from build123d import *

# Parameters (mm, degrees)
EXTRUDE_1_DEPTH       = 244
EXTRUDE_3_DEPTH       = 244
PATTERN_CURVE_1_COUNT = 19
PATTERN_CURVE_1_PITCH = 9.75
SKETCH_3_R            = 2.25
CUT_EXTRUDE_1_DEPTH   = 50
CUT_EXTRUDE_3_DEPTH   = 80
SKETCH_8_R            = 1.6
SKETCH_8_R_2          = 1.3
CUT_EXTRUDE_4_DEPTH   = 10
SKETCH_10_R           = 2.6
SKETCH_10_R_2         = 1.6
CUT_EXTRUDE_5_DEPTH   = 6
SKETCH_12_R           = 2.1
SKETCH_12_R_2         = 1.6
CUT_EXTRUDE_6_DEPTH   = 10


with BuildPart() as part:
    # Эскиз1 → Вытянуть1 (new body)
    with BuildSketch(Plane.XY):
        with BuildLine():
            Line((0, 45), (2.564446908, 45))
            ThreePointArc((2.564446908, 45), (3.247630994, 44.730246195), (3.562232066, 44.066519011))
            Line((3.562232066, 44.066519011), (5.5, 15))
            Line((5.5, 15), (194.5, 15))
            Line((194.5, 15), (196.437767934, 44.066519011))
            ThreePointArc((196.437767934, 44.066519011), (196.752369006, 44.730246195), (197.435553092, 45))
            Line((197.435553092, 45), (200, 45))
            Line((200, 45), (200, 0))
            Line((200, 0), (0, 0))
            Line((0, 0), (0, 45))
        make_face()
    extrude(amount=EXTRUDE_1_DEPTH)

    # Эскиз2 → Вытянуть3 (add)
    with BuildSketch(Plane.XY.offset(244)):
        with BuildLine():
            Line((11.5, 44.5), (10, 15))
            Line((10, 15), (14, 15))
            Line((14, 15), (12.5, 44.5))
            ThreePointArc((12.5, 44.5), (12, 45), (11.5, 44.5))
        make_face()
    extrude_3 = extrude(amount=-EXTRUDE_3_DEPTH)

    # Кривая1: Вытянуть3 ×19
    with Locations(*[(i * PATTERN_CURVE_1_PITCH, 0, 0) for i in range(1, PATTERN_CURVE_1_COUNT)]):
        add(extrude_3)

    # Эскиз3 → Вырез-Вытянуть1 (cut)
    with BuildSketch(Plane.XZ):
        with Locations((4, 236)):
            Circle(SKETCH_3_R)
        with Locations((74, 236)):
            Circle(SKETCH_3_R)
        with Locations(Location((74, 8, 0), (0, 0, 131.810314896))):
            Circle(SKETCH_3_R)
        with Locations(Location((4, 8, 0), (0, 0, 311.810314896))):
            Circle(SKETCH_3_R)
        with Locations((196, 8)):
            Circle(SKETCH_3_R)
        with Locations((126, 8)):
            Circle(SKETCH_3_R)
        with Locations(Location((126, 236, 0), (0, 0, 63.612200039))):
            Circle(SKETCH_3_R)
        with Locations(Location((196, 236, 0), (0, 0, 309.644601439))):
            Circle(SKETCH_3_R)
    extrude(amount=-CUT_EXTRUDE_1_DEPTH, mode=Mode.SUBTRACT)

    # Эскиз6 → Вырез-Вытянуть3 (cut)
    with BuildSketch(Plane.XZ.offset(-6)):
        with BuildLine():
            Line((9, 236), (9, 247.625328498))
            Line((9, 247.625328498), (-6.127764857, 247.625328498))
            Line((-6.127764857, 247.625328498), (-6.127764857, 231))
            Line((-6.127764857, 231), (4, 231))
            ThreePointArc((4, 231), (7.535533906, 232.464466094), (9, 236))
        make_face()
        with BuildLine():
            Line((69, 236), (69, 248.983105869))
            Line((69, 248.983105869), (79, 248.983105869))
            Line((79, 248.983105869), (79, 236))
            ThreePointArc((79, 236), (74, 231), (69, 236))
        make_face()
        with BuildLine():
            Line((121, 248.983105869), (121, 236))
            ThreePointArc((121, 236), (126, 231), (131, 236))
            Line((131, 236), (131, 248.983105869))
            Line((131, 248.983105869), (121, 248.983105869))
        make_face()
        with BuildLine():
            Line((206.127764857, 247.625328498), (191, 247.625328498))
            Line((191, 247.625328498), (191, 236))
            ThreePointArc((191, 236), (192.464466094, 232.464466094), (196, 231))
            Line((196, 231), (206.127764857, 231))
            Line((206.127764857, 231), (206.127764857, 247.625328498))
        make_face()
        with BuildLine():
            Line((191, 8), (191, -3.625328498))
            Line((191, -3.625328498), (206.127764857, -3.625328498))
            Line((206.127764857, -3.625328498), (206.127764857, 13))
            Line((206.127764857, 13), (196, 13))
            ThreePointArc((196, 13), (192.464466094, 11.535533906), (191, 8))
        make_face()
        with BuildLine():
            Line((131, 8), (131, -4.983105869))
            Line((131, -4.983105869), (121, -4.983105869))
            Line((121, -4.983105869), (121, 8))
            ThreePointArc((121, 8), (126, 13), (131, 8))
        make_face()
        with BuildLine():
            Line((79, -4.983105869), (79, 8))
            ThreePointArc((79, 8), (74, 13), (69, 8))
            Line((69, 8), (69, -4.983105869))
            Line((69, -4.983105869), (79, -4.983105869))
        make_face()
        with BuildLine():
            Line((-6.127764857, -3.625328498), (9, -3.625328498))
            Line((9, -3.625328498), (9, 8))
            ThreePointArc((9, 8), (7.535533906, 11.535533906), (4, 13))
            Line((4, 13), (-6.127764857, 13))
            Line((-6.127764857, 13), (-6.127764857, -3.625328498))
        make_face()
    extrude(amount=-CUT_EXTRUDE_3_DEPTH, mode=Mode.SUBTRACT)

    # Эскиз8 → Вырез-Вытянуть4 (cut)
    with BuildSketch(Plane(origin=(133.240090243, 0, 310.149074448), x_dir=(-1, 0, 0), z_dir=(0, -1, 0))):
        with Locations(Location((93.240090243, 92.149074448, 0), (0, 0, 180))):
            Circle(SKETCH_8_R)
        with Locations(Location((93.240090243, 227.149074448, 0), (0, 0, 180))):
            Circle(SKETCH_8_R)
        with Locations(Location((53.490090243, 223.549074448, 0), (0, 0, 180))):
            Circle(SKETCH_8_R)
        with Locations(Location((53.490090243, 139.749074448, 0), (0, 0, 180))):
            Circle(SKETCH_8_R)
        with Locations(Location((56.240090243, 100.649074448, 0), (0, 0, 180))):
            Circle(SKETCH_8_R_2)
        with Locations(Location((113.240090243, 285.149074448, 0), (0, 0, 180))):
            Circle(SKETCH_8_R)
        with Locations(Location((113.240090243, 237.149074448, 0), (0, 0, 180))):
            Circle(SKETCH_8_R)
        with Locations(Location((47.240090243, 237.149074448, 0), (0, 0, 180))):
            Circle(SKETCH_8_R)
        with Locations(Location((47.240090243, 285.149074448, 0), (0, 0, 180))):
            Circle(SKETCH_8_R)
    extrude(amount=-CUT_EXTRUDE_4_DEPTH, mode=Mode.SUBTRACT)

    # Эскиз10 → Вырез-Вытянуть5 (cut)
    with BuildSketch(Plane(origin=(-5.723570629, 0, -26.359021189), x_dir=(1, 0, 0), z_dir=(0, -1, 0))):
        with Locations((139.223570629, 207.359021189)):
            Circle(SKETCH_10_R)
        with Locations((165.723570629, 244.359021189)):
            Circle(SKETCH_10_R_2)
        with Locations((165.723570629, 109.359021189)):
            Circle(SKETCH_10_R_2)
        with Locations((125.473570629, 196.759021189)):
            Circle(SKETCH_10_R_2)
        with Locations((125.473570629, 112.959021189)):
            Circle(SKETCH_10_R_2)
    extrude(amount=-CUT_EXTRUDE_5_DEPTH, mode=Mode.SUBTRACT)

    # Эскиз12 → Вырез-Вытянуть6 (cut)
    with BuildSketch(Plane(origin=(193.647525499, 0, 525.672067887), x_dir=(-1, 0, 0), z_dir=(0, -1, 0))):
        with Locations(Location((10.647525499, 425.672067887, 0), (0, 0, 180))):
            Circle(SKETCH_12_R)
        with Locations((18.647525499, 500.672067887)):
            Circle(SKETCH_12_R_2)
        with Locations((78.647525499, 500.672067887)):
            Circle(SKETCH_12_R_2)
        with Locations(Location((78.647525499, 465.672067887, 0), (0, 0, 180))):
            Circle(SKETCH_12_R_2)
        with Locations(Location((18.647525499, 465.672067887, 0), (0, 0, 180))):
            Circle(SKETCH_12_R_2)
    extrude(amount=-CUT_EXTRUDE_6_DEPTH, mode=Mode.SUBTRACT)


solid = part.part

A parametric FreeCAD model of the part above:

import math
import FreeCAD as App
import Part
import Sketcher
Q = App.Units.Quantity

doc = App.newDocument("Part")
body = doc.addObject("PartDesign::Body", "Body")

# Sketch on XY plane
sketch1 = body.newObject("Sketcher::SketchObject", "Sketch")
sketch1.AttachmentSupport = (doc.getObject("XY_Plane"), [""])
sketch1.MapMode = "FlatFace"
sketch1.addGeometry([
    Part.LineSegment(App.Vector(2.564447, 45, 0), App.Vector(0, 45, 0)),  # 0
    Part.LineSegment(App.Vector(0, 45, 0), App.Vector(0, 0, 0)),  # 1
    Part.LineSegment(App.Vector(0, 0, 0), App.Vector(200, 0, 0)),  # 2
    Part.LineSegment(App.Vector(200, 0, 0), App.Vector(200, 45, 0)),  # 3
    Part.LineSegment(App.Vector(200, 45, 0), App.Vector(197.435553, 45, 0)),  # 4
    Part.ArcOfCircle(Part.Circle(App.Vector(197.435553, 44, 0), App.Vector(0, 0, 1), 1), math.radians(90), math.radians(176.185925)),  # 5
    Part.LineSegment(App.Vector(196.437768, 44.066519, 0), App.Vector(194.5, 15, 0)),  # 6
    Part.LineSegment(App.Vector(194.5, 15, 0), App.Vector(5.5, 15, 0)),  # 7
    Part.LineSegment(App.Vector(5.5, 15, 0), App.Vector(3.562232, 44.066519, 0)),  # 8
    Part.ArcOfCircle(Part.Circle(App.Vector(2.564447, 44, 0), App.Vector(0, 0, 1), 1), math.radians(3.814075), math.radians(90)),  # 9
], False)
sketch1.addConstraint([
    Sketcher.Constraint("Coincident", 0, 2, 1, 1),
    Sketcher.Constraint("Coincident", 1, 2, 2, 1),
    Sketcher.Constraint("Coincident", 2, 2, 3, 1),
    Sketcher.Constraint("Coincident", 3, 2, 4, 1),
    Sketcher.Constraint("Tangent", 4, 2, 5, 1),
    Sketcher.Constraint("Tangent", 5, 2, 6, 1),
    Sketcher.Constraint("Coincident", 6, 2, 7, 1),
    Sketcher.Constraint("Coincident", 7, 2, 8, 1),
    Sketcher.Constraint("Tangent", 8, 2, 9, 1),
    Sketcher.Constraint("Tangent", 9, 2, 0, 1),
    Sketcher.Constraint("Horizontal", 0),
    Sketcher.Constraint("Vertical", 1),
    Sketcher.Constraint("Horizontal", 2),
    Sketcher.Constraint("Vertical", 3),
    Sketcher.Constraint("Horizontal", 4),
    Sketcher.Constraint("Horizontal", 7),
    Sketcher.Constraint("Coincident", 1, 2, -1, 1),
    Sketcher.Constraint("Equal", 5, 9),
    Sketcher.Constraint("Horizontal", 5, 3, 9, 3),
    Sketcher.Constraint("Horizontal", 5, 2, 8, 2),
    Sketcher.Constraint("Equal", 0, 4),
    Sketcher.Constraint("Radius", 5, Q("1 mm")),
    Sketcher.Constraint("DistanceX", 2, 1, 2, 2, Q("200 mm")),
    Sketcher.Constraint("DistanceX", 7, 2, 7, 1, Q("189 mm")),
    Sketcher.Constraint("DistanceY", 1, 2, 1, 1, Q("45 mm")),
    Sketcher.Constraint("DistanceY", -1, 1, 6, 2, Q("15 mm")),
    Sketcher.Constraint("Distance", 6, Q("29.13104 mm")),
])
pad1 = body.newObject("PartDesign::Pad", "Pad")
pad1.Profile = sketch1
pad1.Length = 244

# Sketch on XY plane
sketch2 = body.newObject("Sketcher::SketchObject", "Sketch001")
sketch2.AttachmentSupport = (doc.getObject("XY_Plane"), [""])
sketch2.MapMode = "FlatFace"
sketch2.AttachmentOffset = App.Placement(App.Vector(0, 0, 244), App.Rotation())
sketch2.addGeometry([
    Part.LineSegment(App.Vector(11.5, 44.5, 0), App.Vector(10, 15, 0)),
    Part.LineSegment(App.Vector(10, 15, 0), App.Vector(14, 15, 0)),
    Part.LineSegment(App.Vector(14, 15, 0), App.Vector(12.5, 44.5, 0)),
    Part.ArcOfCircle(Part.Circle(App.Vector(12, 44.5, 0), App.Vector(0, 0, 1), 0.5), math.radians(0), math.radians(180)),
], False)
sketch2.addConstraint([
    Sketcher.Constraint("Coincident", 0, 2, 1, 1),
    Sketcher.Constraint("Coincident", 1, 2, 2, 1),
    Sketcher.Constraint("Coincident", 2, 2, 3, 1),
    Sketcher.Constraint("Coincident", 3, 2, 0, 1),
    Sketcher.Constraint("Horizontal", 1),
    Sketcher.Constraint("Horizontal", 3, 3, 2, 2),
    Sketcher.Constraint("Horizontal", 2, 2, 3, 2),
    Sketcher.Constraint("Equal", 0, 2),
    Sketcher.Constraint("Radius", 3, Q("0.5 mm")),
    Sketcher.Constraint("DistanceX", 1, 1, 1, 2, Q("4 mm")),
    Sketcher.Constraint("DistanceX", -1, 1, 3, 3, Q("12 mm")),
    Sketcher.Constraint("DistanceY", -1, 1, 0, 2, Q("15 mm")),
    Sketcher.Constraint("DistanceY", -1, 1, 3, 3, Q("44.5 mm")),
])
pad2 = body.newObject("PartDesign::Pad", "Pad001")
pad2.Profile = sketch2
pad2.Length = 244
pad2.Reversed = True
doc.recompute()

linearpattern = body.newObject("PartDesign::LinearPattern", "LinearPattern")
linearpattern.Originals = [pad2]
linearpattern.Direction = (doc.getObject("X_Axis"), [""])
linearpattern.Mode = "offset"
linearpattern.Offset = 9.75
linearpattern.Occurrences = 19
body.Tip = linearpattern

# Sketch on XZ plane
sketch3 = body.newObject("Sketcher::SketchObject", "Sketch002")
sketch3.AttachmentSupport = (doc.getObject("XZ_Plane"), [""])
sketch3.MapMode = "FlatFace"
sketch3.addGeometry([
    Part.Circle(App.Vector(4, 236, 0), App.Vector(0, 0, 1), 2.25),  # 0
    Part.Circle(App.Vector(74, 236, 0), App.Vector(0, 0, 1), 2.25),  # 1
    Part.Circle(App.Vector(74, 8, 0), App.Vector(0, 0, 1), 2.25),  # 2
    Part.Circle(App.Vector(4, 8, 0), App.Vector(0, 0, 1), 2.25),  # 3
    Part.Circle(App.Vector(196, 8, 0), App.Vector(0, 0, 1), 2.25),  # 4
    Part.Circle(App.Vector(126, 8, 0), App.Vector(0, 0, 1), 2.25),  # 5
    Part.Circle(App.Vector(126, 236, 0), App.Vector(0, 0, 1), 2.25),  # 6
    Part.Circle(App.Vector(196, 236, 0), App.Vector(0, 0, 1), 2.25),  # 7
], False)
sketch3.addConstraint([
    Sketcher.Constraint("Equal", 0, 1),
    Sketcher.Constraint("Equal", 1, 2),
    Sketcher.Constraint("Equal", 2, 3),
    Sketcher.Constraint("Equal", 3, 4),
    Sketcher.Constraint("Equal", 4, 5),
    Sketcher.Constraint("Equal", 5, 6),
    Sketcher.Constraint("Equal", 6, 7),
    Sketcher.Constraint("Horizontal", 0, 3, 1, 3),
    Sketcher.Constraint("Horizontal", 2, 3, 3, 3),
    Sketcher.Constraint("Horizontal", 3, 3, 4, 3),
    Sketcher.Constraint("Horizontal", 4, 3, 5, 3),
    Sketcher.Constraint("Horizontal", 1, 3, 6, 3),
    Sketcher.Constraint("Horizontal", 6, 3, 7, 3),
    Sketcher.Constraint("Vertical", 1, 3, 2, 3),
    Sketcher.Constraint("Vertical", 0, 3, 3, 3),
    Sketcher.Constraint("Vertical", 5, 3, 6, 3),
    Sketcher.Constraint("Vertical", 4, 3, 7, 3),
    Sketcher.Constraint("Diameter", 0, Q("4.5 mm")),
    Sketcher.Constraint("DistanceX", -1, 1, 0, 3, Q("4 mm")),
    Sketcher.Constraint("DistanceY", -1, 1, 0, 3, Q("236 mm")),
    Sketcher.Constraint("DistanceX", -1, 1, 1, 3, Q("74 mm")),
    Sketcher.Constraint("DistanceY", -1, 1, 2, 3, Q("8 mm")),
    Sketcher.Constraint("DistanceX", -1, 1, 4, 3, Q("196 mm")),
    Sketcher.Constraint("DistanceX", -1, 1, 5, 3, Q("126 mm")),
])
pocket1 = body.newObject("PartDesign::Pocket", "Pocket")
pocket1.Profile = sketch3
pocket1.Length = 50

# Sketch on XZ plane
sketch4 = body.newObject("Sketcher::SketchObject", "Sketch003")
sketch4.AttachmentSupport = (doc.getObject("XZ_Plane"), [""])
sketch4.MapMode = "FlatFace"
sketch4.AttachmentOffset = App.Placement(App.Vector(0, 0, -6), App.Rotation())
sketch4.addGeometry([
    Part.LineSegment(App.Vector(9, 236, 0), App.Vector(9, 247.625328, 0)),  # 0
    Part.LineSegment(App.Vector(9, 247.625328, 0), App.Vector(-6.127765, 247.625328, 0)),  # 1
    Part.LineSegment(App.Vector(-6.127765, 247.625328, 0), App.Vector(-6.127765, 231, 0)),  # 2
    Part.LineSegment(App.Vector(-6.127765, 231, 0), App.Vector(4, 231, 0)),  # 3
    Part.ArcOfCircle(Part.Circle(App.Vector(4, 236, 0), App.Vector(0, 0, 1), 5), math.radians(-90), math.radians(0)),  # 4
    Part.LineSegment(App.Vector(69, 248.983106, 0), App.Vector(69, 236, 0)),  # 5
    Part.ArcOfCircle(Part.Circle(App.Vector(74, 236, 0), App.Vector(0, 0, 1), 5), math.radians(180), math.radians(360)),  # 6
    Part.LineSegment(App.Vector(79, 236, 0), App.Vector(79, 248.983106, 0)),  # 7
    Part.LineSegment(App.Vector(79, 248.983106, 0), App.Vector(69, 248.983106, 0)),  # 8
    Part.LineSegment(App.Vector(121, 248.983106, 0), App.Vector(121, 236, 0)),  # 9
    Part.ArcOfCircle(Part.Circle(App.Vector(126, 236, 0), App.Vector(0, 0, 1), 5), math.radians(180), math.radians(360)),  # 10
    Part.LineSegment(App.Vector(131, 236, 0), App.Vector(131, 248.983106, 0)),  # 11
    Part.LineSegment(App.Vector(131, 248.983106, 0), App.Vector(121, 248.983106, 0)),  # 12
    Part.LineSegment(App.Vector(206.127765, 247.625328, 0), App.Vector(191, 247.625328, 0)),  # 13
    Part.LineSegment(App.Vector(191, 247.625328, 0), App.Vector(191, 236, 0)),  # 14
    Part.ArcOfCircle(Part.Circle(App.Vector(196, 236, 0), App.Vector(0, 0, 1), 5), math.radians(180), math.radians(270)),  # 15
    Part.LineSegment(App.Vector(196, 231, 0), App.Vector(206.127765, 231, 0)),  # 16
    Part.LineSegment(App.Vector(206.127765, 231, 0), App.Vector(206.127765, 247.625328, 0)),  # 17
    Part.LineSegment(App.Vector(191, 8, 0), App.Vector(191, -3.625328, 0)),  # 18
    Part.LineSegment(App.Vector(191, -3.625328, 0), App.Vector(206.127765, -3.625328, 0)),  # 19
    Part.LineSegment(App.Vector(206.127765, -3.625328, 0), App.Vector(206.127765, 13, 0)),  # 20
    Part.LineSegment(App.Vector(206.127765, 13, 0), App.Vector(196, 13, 0)),  # 21
    Part.ArcOfCircle(Part.Circle(App.Vector(196, 8, 0), App.Vector(0, 0, 1), 5), math.radians(90), math.radians(180)),  # 22
    Part.LineSegment(App.Vector(131, -4.983106, 0), App.Vector(131, 8, 0)),  # 23
    Part.ArcOfCircle(Part.Circle(App.Vector(126, 8, 0), App.Vector(0, 0, 1), 5), math.radians(0), math.radians(180)),  # 24
    Part.LineSegment(App.Vector(121, 8, 0), App.Vector(121, -4.983106, 0)),  # 25
    Part.LineSegment(App.Vector(121, -4.983106, 0), App.Vector(131, -4.983106, 0)),  # 26
    Part.LineSegment(App.Vector(79, -4.983106, 0), App.Vector(79, 8, 0)),  # 27
    Part.ArcOfCircle(Part.Circle(App.Vector(74, 8, 0), App.Vector(0, 0, 1), 5), math.radians(0), math.radians(180)),  # 28
    Part.LineSegment(App.Vector(69, 8, 0), App.Vector(69, -4.983106, 0)),  # 29
    Part.LineSegment(App.Vector(69, -4.983106, 0), App.Vector(79, -4.983106, 0)),  # 30
    Part.LineSegment(App.Vector(-6.127765, -3.625328, 0), App.Vector(9, -3.625328, 0)),  # 31
    Part.LineSegment(App.Vector(9, -3.625328, 0), App.Vector(9, 8, 0)),  # 32
    Part.ArcOfCircle(Part.Circle(App.Vector(4, 8, 0), App.Vector(0, 0, 1), 5), math.radians(0), math.radians(90)),  # 33
    Part.LineSegment(App.Vector(4, 13, 0), App.Vector(-6.127765, 13, 0)),  # 34
    Part.LineSegment(App.Vector(-6.127765, 13, 0), App.Vector(-6.127765, -3.625328, 0)),  # 35
], False)
sketch4.addConstraint([
    Sketcher.Constraint("Coincident", 0, 2, 1, 1),
    Sketcher.Constraint("Coincident", 1, 2, 2, 1),
    Sketcher.Constraint("Coincident", 2, 2, 3, 1),
    Sketcher.Constraint("Tangent", 3, 2, 4, 1),
    Sketcher.Constraint("Tangent", 4, 2, 0, 1),
    Sketcher.Constraint("Tangent", 5, 2, 6, 1),
    Sketcher.Constraint("Tangent", 6, 2, 7, 1),
    Sketcher.Constraint("Coincident", 7, 2, 8, 1),
    Sketcher.Constraint("Coincident", 8, 2, 5, 1),
    Sketcher.Constraint("Tangent", 9, 2, 10, 1),
    Sketcher.Constraint("Tangent", 10, 2, 11, 1),
    Sketcher.Constraint("Coincident", 11, 2, 12, 1),
    Sketcher.Constraint("Coincident", 12, 2, 9, 1),
    Sketcher.Constraint("Coincident", 13, 2, 14, 1),
    Sketcher.Constraint("Tangent", 14, 2, 15, 1),
    Sketcher.Constraint("Tangent", 15, 2, 16, 1),
    Sketcher.Constraint("Coincident", 16, 2, 17, 1),
    Sketcher.Constraint("Coincident", 17, 2, 13, 1),
    Sketcher.Constraint("Coincident", 18, 2, 19, 1),
    Sketcher.Constraint("Coincident", 19, 2, 20, 1),
    Sketcher.Constraint("Coincident", 20, 2, 21, 1),
    Sketcher.Constraint("Tangent", 21, 2, 22, 1),
    Sketcher.Constraint("Tangent", 22, 2, 18, 1),
    Sketcher.Constraint("Tangent", 23, 2, 24, 1),
    Sketcher.Constraint("Tangent", 24, 2, 25, 1),
    Sketcher.Constraint("Coincident", 25, 2, 26, 1),
    Sketcher.Constraint("Coincident", 26, 2, 23, 1),
    Sketcher.Constraint("Tangent", 27, 2, 28, 1),
    Sketcher.Constraint("Tangent", 28, 2, 29, 1),
    Sketcher.Constraint("Coincident", 29, 2, 30, 1),
    Sketcher.Constraint("Coincident", 30, 2, 27, 1),
    Sketcher.Constraint("Coincident", 31, 2, 32, 1),
    Sketcher.Constraint("Tangent", 32, 2, 33, 1),
    Sketcher.Constraint("Tangent", 33, 2, 34, 1),
    Sketcher.Constraint("Coincident", 34, 2, 35, 1),
    Sketcher.Constraint("Coincident", 35, 2, 31, 1),
    Sketcher.Constraint("Vertical", 0),
    Sketcher.Constraint("Horizontal", 1),
    Sketcher.Constraint("Vertical", 2),
    Sketcher.Constraint("Horizontal", 3),
    Sketcher.Constraint("Vertical", 5),
    Sketcher.Constraint("Vertical", 7),
    Sketcher.Constraint("Horizontal", 8),
    Sketcher.Constraint("Vertical", 9),
    Sketcher.Constraint("Vertical", 11),
    Sketcher.Constraint("Horizontal", 12),
    Sketcher.Constraint("Horizontal", 13),
    Sketcher.Constraint("Vertical", 14),
    Sketcher.Constraint("Horizontal", 16),
    Sketcher.Constraint("Vertical", 17),
    Sketcher.Constraint("Vertical", 18),
    Sketcher.Constraint("Horizontal", 19),
    Sketcher.Constraint("Vertical", 20),
    Sketcher.Constraint("Horizontal", 21),
    Sketcher.Constraint("Vertical", 23),
    Sketcher.Constraint("Vertical", 25),
    Sketcher.Constraint("Horizontal", 26),
    Sketcher.Constraint("Vertical", 27),
    Sketcher.Constraint("Vertical", 29),
    Sketcher.Constraint("Horizontal", 30),
    Sketcher.Constraint("Horizontal", 31),
    Sketcher.Constraint("Vertical", 32),
    Sketcher.Constraint("Horizontal", 34),
    Sketcher.Constraint("Vertical", 35),
    Sketcher.Constraint("Equal", 4, 6),
    Sketcher.Constraint("Equal", 6, 10),
    Sketcher.Constraint("Equal", 10, 15),
    Sketcher.Constraint("Equal", 15, 22),
    Sketcher.Constraint("Equal", 22, 24),
    Sketcher.Constraint("Equal", 24, 28),
    Sketcher.Constraint("Equal", 28, 33),
    Sketcher.Constraint("Horizontal", 4, 3, 6, 3),
    Sketcher.Constraint("Horizontal", 6, 3, 10, 3),
    Sketcher.Constraint("Horizontal", 10, 3, 15, 3),
    Sketcher.Constraint("Horizontal", 22, 3, 24, 3),
    Sketcher.Constraint("Horizontal", 24, 3, 28, 3),
    Sketcher.Constraint("Horizontal", 28, 3, 33, 3),
    Sketcher.Constraint("Horizontal", 8, 2, 11, 2),
    Sketcher.Constraint("Horizontal", 1, 2, 13, 2),
    Sketcher.Constraint("Horizontal", 26, 2, 29, 2),
    Sketcher.Constraint("Horizontal", 19, 2, 31, 2),
    Sketcher.Constraint("Vertical", 15, 3, 22, 3),
    Sketcher.Constraint("Vertical", 10, 3, 24, 3),
    Sketcher.Constraint("Vertical", 6, 3, 28, 3),
    Sketcher.Constraint("Vertical", 4, 3, 33, 3),
    Sketcher.Constraint("Vertical", 17, 2, 19, 2),
    Sketcher.Constraint("Vertical", 2, 2, 34, 2),
    Sketcher.Constraint("Equal", 1, 13),
    Sketcher.Constraint("Equal", 14, 18),
    Sketcher.Constraint("Equal", 11, 23),
    Sketcher.Constraint("Radius", 4, Q("5 mm")),
    Sketcher.Constraint("DistanceX", -1, 1, 4, 3, Q("4 mm")),
    Sketcher.Constraint("DistanceY", -1, 1, 4, 3, Q("236 mm")),
    Sketcher.Constraint("DistanceX", -1, 1, 6, 3, Q("74 mm")),
    Sketcher.Constraint("DistanceX", -1, 1, 10, 3, Q("126 mm")),
    Sketcher.Constraint("DistanceX", -1, 1, 15, 3, Q("196 mm")),
    Sketcher.Constraint("DistanceY", -1, 1, 22, 3, Q("8 mm")),
    Sketcher.Constraint("DistanceY", 0, 1, 0, 2, Q("11.625328 mm")),
    Sketcher.Constraint("DistanceX", 1, 2, 1, 1, Q("15.127765 mm")),
    Sketcher.Constraint("DistanceY", 5, 2, 5, 1, Q("12.983106 mm")),
])
pocket2 = body.newObject("PartDesign::Pocket", "Pocket001")
pocket2.Profile = sketch4
pocket2.Length = 80

# Sketch on XZ plane
sketch5 = body.newObject("Sketcher::SketchObject", "Sketch004")
sketch5.AttachmentSupport = (doc.getObject("XZ_Plane"), [""])
sketch5.MapMode = "FlatFace"
sketch5.addGeometry([
    Part.Circle(App.Vector(40, 218, 0), App.Vector(0, 0, 1), 1.6),  # 0
    Part.Circle(App.Vector(40, 83, 0), App.Vector(0, 0, 1), 1.6),  # 1
    Part.Circle(App.Vector(79.75, 86.6, 0), App.Vector(0, 0, 1), 1.6),  # 2
    Part.Circle(App.Vector(79.75, 170.4, 0), App.Vector(0, 0, 1), 1.6),  # 3
    Part.Circle(App.Vector(77, 209.5, 0), App.Vector(0, 0, 1), 1.3),  # 4
    Part.Circle(App.Vector(20, 25, 0), App.Vector(0, 0, 1), 1.6),  # 5
    Part.Circle(App.Vector(20, 73, 0), App.Vector(0, 0, 1), 1.6),  # 6
    Part.Circle(App.Vector(86, 73, 0), App.Vector(0, 0, 1), 1.6),  # 7
    Part.Circle(App.Vector(86, 25, 0), App.Vector(0, 0, 1), 1.6),  # 8
], False)
sketch5.addConstraint([
    Sketcher.Constraint("Equal", 0, 1),
    Sketcher.Constraint("Equal", 1, 2),
    Sketcher.Constraint("Equal", 2, 3),
    Sketcher.Constraint("Equal", 3, 5),
    Sketcher.Constraint("Equal", 5, 6),
    Sketcher.Constraint("Equal", 6, 7),
    Sketcher.Constraint("Equal", 7, 8),
    Sketcher.Constraint("Horizontal", 6, 3, 7, 3),
    Sketcher.Constraint("Horizontal", 5, 3, 8, 3),
    Sketcher.Constraint("Vertical", 0, 3, 1, 3),
    Sketcher.Constraint("Vertical", 2, 3, 3, 3),
    Sketcher.Constraint("Vertical", 5, 3, 6, 3),
    Sketcher.Constraint("Vertical", 7, 3, 8, 3),
    Sketcher.Constraint("Diameter", 0, Q("3.2 mm")),
    Sketcher.Constraint("Diameter", 4, Q("2.6 mm")),
    Sketcher.Constraint("DistanceX", -1, 1, 0, 3, Q("40 mm")),
    Sketcher.Constraint("DistanceY", -1, 1, 0, 3, Q("218 mm")),
    Sketcher.Constraint("DistanceY", -1, 1, 1, 3, Q("83 mm")),
    Sketcher.Constraint("DistanceX", -1, 1, 4, 3, Q("77 mm")),
    Sketcher.Constraint("DistanceX", -1, 1, 5, 3, Q("20 mm")),
    Sketcher.Constraint("DistanceY", -1, 1, 5, 3, Q("25 mm")),
    Sketcher.Constraint("DistanceY", -1, 1, 6, 3, Q("73 mm")),
    Sketcher.Constraint("DistanceX", -1, 1, 7, 3, Q("86 mm")),
    Sketcher.Constraint("DistanceY", -1, 1, 2, 3, Q("86.6 mm")),
    Sketcher.Constraint("DistanceY", -1, 1, 3, 3, Q("170.4 mm")),
    Sketcher.Constraint("DistanceY", -1, 1, 4, 3, Q("209.5 mm")),
    Sketcher.Constraint("DistanceX", -1, 1, 2, 3, Q("79.75 mm")),
])
pocket3 = body.newObject("PartDesign::Pocket", "Pocket002")
pocket3.Profile = sketch5
pocket3.Length = 10

# Sketch on XZ plane
sketch6 = body.newObject("Sketcher::SketchObject", "Sketch005")
sketch6.AttachmentSupport = (doc.getObject("XZ_Plane"), [""])
sketch6.MapMode = "FlatFace"
sketch6.addGeometry([
    Part.Circle(App.Vector(133.5, 181, 0), App.Vector(0, 0, 1), 2.6),  # 0
    Part.Circle(App.Vector(160, 218, 0), App.Vector(0, 0, 1), 1.6),  # 1
    Part.Circle(App.Vector(160, 83, 0), App.Vector(0, 0, 1), 1.6),  # 2
    Part.Circle(App.Vector(119.75, 170.4, 0), App.Vector(0, 0, 1), 1.6),  # 3
    Part.Circle(App.Vector(119.75, 86.6, 0), App.Vector(0, 0, 1), 1.6),  # 4
], False)
sketch6.addConstraint([
    Sketcher.Constraint("Equal", 1, 2),
    Sketcher.Constraint("Equal", 2, 3),
    Sketcher.Constraint("Equal", 3, 4),
    Sketcher.Constraint("Vertical", 1, 3, 2, 3),
    Sketcher.Constraint("Vertical", 3, 3, 4, 3),
    Sketcher.Constraint("Diameter", 0, Q("5.2 mm")),
    Sketcher.Constraint("Diameter", 1, Q("3.2 mm")),
    Sketcher.Constraint("DistanceY", -1, 1, 0, 3, Q("181 mm")),
    Sketcher.Constraint("DistanceX", -1, 1, 1, 3, Q("160 mm")),
    Sketcher.Constraint("DistanceY", -1, 1, 1, 3, Q("218 mm")),
    Sketcher.Constraint("DistanceY", -1, 1, 2, 3, Q("83 mm")),
    Sketcher.Constraint("DistanceX", -1, 1, 0, 3, Q("133.5 mm")),
    Sketcher.Constraint("DistanceY", -1, 1, 3, 3, Q("170.4 mm")),
    Sketcher.Constraint("DistanceY", -1, 1, 4, 3, Q("86.6 mm")),
    Sketcher.Constraint("DistanceX", -1, 1, 3, 3, Q("119.75 mm")),
])
pocket4 = body.newObject("PartDesign::Pocket", "Pocket003")
pocket4.Profile = sketch6
pocket4.Length = 6

# Sketch on XZ plane
sketch7 = body.newObject("Sketcher::SketchObject", "Sketch006")
sketch7.AttachmentSupport = (doc.getObject("XZ_Plane"), [""])
sketch7.MapMode = "FlatFace"
sketch7.addGeometry([
    Part.Circle(App.Vector(183, 100, 0), App.Vector(0, 0, 1), 2.1),  # 0
    Part.Circle(App.Vector(175, 25, 0), App.Vector(0, 0, 1), 1.6),  # 1
    Part.Circle(App.Vector(115, 25, 0), App.Vector(0, 0, 1), 1.6),  # 2
    Part.Circle(App.Vector(115, 60, 0), App.Vector(0, 0, 1), 1.6),  # 3
    Part.Circle(App.Vector(175, 60, 0), App.Vector(0, 0, 1), 1.6),  # 4
], False)
sketch7.addConstraint([
    Sketcher.Constraint("Equal", 1, 2),
    Sketcher.Constraint("Equal", 2, 3),
    Sketcher.Constraint("Equal", 3, 4),
    Sketcher.Constraint("Horizontal", 1, 3, 2, 3),
    Sketcher.Constraint("Horizontal", 3, 3, 4, 3),
    Sketcher.Constraint("Vertical", 2, 3, 3, 3),
    Sketcher.Constraint("Vertical", 1, 3, 4, 3),
    Sketcher.Constraint("Diameter", 0, Q("4.2 mm")),
    Sketcher.Constraint("Diameter", 1, Q("3.2 mm")),
    Sketcher.Constraint("DistanceX", -1, 1, 0, 3, Q("183 mm")),
    Sketcher.Constraint("DistanceY", -1, 1, 0, 3, Q("100 mm")),
    Sketcher.Constraint("DistanceX", -1, 1, 1, 3, Q("175 mm")),
    Sketcher.Constraint("DistanceY", -1, 1, 1, 3, Q("25 mm")),
    Sketcher.Constraint("DistanceX", -1, 1, 2, 3, Q("115 mm")),
    Sketcher.Constraint("DistanceY", -1, 1, 3, 3, Q("60 mm")),
])
pocket5 = body.newObject("PartDesign::Pocket", "Pocket004")
pocket5.Profile = sketch7
pocket5.Length = 10

doc.recompute()
